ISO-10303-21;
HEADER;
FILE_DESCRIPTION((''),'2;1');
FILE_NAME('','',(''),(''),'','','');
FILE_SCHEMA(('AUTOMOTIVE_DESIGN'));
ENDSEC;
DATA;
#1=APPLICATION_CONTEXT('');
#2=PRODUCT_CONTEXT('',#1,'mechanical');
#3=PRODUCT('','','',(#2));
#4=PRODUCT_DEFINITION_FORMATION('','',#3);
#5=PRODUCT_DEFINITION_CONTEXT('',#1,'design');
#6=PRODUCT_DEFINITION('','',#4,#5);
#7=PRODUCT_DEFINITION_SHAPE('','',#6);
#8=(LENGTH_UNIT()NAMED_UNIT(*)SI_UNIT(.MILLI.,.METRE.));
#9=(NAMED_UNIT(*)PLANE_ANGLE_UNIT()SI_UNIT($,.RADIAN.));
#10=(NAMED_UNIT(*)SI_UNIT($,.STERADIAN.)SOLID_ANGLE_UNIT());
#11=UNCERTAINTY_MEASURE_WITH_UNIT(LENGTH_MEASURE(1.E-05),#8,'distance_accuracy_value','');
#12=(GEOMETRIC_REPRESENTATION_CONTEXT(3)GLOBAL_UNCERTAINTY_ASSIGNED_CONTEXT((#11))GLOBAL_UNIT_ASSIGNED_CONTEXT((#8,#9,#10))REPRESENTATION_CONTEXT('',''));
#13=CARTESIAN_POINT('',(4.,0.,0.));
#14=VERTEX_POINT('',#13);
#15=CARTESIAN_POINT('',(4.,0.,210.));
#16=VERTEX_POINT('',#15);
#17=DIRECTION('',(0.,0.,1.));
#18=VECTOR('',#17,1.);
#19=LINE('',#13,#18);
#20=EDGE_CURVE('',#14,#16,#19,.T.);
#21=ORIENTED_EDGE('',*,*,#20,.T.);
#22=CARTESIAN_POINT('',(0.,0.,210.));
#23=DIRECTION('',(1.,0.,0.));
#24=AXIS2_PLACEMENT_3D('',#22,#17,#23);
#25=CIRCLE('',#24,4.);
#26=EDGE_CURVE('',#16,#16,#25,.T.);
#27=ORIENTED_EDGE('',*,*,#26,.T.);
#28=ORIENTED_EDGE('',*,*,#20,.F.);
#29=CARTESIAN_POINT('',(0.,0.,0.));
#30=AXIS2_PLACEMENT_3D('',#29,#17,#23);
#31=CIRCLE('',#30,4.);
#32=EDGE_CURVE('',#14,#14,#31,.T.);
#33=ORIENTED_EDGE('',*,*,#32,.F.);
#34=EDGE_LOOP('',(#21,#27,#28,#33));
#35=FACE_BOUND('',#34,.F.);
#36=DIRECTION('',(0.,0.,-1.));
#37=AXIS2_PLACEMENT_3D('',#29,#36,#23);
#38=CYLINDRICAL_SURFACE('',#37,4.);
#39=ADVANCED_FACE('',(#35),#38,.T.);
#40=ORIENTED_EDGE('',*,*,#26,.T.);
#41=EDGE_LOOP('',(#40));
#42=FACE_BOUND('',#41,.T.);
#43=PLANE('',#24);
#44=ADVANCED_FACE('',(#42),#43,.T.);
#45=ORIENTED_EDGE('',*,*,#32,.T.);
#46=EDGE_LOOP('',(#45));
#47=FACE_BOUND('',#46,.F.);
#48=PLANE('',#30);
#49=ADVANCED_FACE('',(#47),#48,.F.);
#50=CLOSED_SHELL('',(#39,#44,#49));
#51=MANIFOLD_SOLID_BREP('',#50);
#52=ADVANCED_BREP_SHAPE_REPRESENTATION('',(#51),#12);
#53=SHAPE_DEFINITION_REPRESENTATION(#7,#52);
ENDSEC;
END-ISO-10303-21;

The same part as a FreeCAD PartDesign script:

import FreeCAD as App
import Part
import Sketcher

V = App.Vector
Q = App.Units.Quantity

doc = App.newDocument("Part")
body = doc.addObject("PartDesign::Body", "Body")

# Sketch on XY plane
sketch1 = body.newObject("Sketcher::SketchObject", "Sketch")
sketch1.AttachmentSupport = (doc.getObject("XY_Plane"), [""])
sketch1.MapMode = "FlatFace"
sketch1.addGeometry(Part.Circle(V(0, 0, 0), V(0, 0, 1), 4), False)
sketch1.addConstraint([
    Sketcher.Constraint("Coincident", 0, 3, -1, 1),
    Sketcher.Constraint("Diameter", 0, Q("8 mm")),
])
pad1 = body.newObject("PartDesign::Pad", "Pad")
pad1.Profile = sketch1
pad1.Length = 210

doc.recompute()
